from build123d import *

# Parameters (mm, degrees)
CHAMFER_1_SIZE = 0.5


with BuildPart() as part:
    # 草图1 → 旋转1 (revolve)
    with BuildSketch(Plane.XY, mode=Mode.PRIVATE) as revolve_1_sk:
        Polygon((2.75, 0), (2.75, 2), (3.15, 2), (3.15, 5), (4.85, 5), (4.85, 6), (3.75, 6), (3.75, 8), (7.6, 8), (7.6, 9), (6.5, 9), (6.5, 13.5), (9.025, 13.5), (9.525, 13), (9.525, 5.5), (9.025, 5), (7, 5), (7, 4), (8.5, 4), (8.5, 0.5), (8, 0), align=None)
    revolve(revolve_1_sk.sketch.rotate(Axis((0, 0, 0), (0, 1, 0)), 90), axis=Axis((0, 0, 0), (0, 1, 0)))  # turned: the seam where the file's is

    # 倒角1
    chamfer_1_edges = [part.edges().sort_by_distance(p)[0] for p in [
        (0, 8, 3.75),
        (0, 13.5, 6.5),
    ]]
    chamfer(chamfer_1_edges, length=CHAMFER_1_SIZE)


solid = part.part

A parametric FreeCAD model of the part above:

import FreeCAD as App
import Part
import Sketcher
Q = App.Units.Quantity


def edges_at(feature, points):
    """Names of the edges that pass closest to the given points."""
    edges = feature.Shape.Edges
    near = lambda p: min(range(len(edges)), key=lambda i: edges[i].distToShape(Part.Vertex(*p))[0])
    return sorted({f"Edge{near(p) + 1}" for p in points})


def add_polygon(sketch, points):
    """Adds a closed chain of lines whose ends are joined by coincident constraints."""
    first, n = sketch.GeometryCount, len(points)
    for a, b in zip(points, points[1:] + points[:1]):
        sketch.addGeometry(Part.LineSegment(App.Vector(*a, 0), App.Vector(*b, 0)), False)
    for i in range(n):
        sketch.addConstraint(Sketcher.Constraint("Coincident", first + i, 2, first + (i + 1) % n, 1))

doc = App.newDocument("Part")
body = doc.addObject("PartDesign::Body", "Body")

# Sketch on XY plane
sketch1 = doc.addObject("Sketcher::SketchObject", "Sketch")
body.addObject(sketch1)
sketch1.AttachmentSupport = (doc.XY_Plane, [""])
sketch1.MapMode = "FlatFace"
add_polygon(sketch1, [(2.75, 2), (2.75, 0), (8, 0), (8.5, 0.5), (8.5, 4), (7, 4), (7, 5), (9.03, 5), (9.53, 5.5), (9.53, 13), (9.03, 13.5), (6.5, 13.5), (6.5, 9), (7.6, 9), (7.6, 8), (3.75, 8), (3.75, 6), (4.85, 6), (4.85, 5), (3.15, 5), (3.15, 2)])  # lines 0-20
sketch1.addConstraint([
    Sketcher.Constraint("Vertical", 0),
    Sketcher.Constraint("Horizontal", 1),
    Sketcher.Constraint("Vertical", 3),
    Sketcher.Constraint("Horizontal", 4),
    Sketcher.Constraint("Vertical", 5),
    Sketcher.Constraint("Horizontal", 6),
    Sketcher.Constraint("Vertical", 8),
    Sketcher.Constraint("Horizontal", 10),
    Sketcher.Constraint("Vertical", 11),
    Sketcher.Constraint("Horizontal", 12),
    Sketcher.Constraint("Vertical", 13),
    Sketcher.Constraint("Horizontal", 14),
    Sketcher.Constraint("Vertical", 15),
    Sketcher.Constraint("Horizontal", 16),
    Sketcher.Constraint("Vertical", 17),
    Sketcher.Constraint("Horizontal", 18),
    Sketcher.Constraint("Vertical", 19),
    Sketcher.Constraint("Horizontal", 20),
    Sketcher.Constraint("PointOnObject", 0, 2, -1),
    Sketcher.Constraint("Parallel", 2, 7),
    Sketcher.Constraint("Perpendicular", 7, 9),
    Sketcher.Constraint("Horizontal", 6, 2, 17, 2),
    Sketcher.Constraint("Vertical", 6, 2, 9, 2),
    Sketcher.Constraint("Equal", 12, 16),
    Sketcher.Constraint("Equal", 5, 13),
    Sketcher.Constraint("Equal", 0, 15),
    Sketcher.Constraint("Equal", 13, 17),
    Sketcher.Constraint("Equal", 2, 7),
    Sketcher.Constraint("Equal", 7, 9),
    Sketcher.Constraint("DistanceY", 0, 2, 0, 1, Q("2 mm")),
    Sketcher.Constraint("DistanceY", 5, 1, 5, 2, Q("1 mm")),
    Sketcher.Constraint("DistanceY", 19, 2, 19, 1, Q("3 mm")),
    Sketcher.Constraint("DistanceX", 4, 2, 4, 1, Q("1.5 mm")),
    Sketcher.Constraint("DistanceX", 12, 1, 12, 2, Q("1.1 mm")),
    Sketcher.Constraint("DistanceX", 18, 2, 18, 1, Q("1.7 mm")),
    Sketcher.Constraint("DistanceX", 20, 2, 20, 1, Q("0.4 mm")),
    Sketcher.Constraint("DistanceY", 3, 1, 3, 2, Q("3.5 mm")),
    Sketcher.Constraint("DistanceY", 8, 1, 8, 2, Q("7.5 mm")),
    Sketcher.Constraint("DistanceX", -1, 1, 1, 2, Q("8 mm")),
    Sketcher.Constraint("DistanceX", 1, 1, 1, 2, Q("5.25 mm")),
    Sketcher.Constraint("DistanceX", 14, 2, 14, 1, Q("3.85 mm")),
    Sketcher.Constraint("DistanceX", 6, 1, 6, 2, Q("2.025 mm")),
])
revolution = doc.addObject("PartDesign::Revolution", "Revolution")
body.addObject(revolution)
revolution.Profile = sketch1
revolution.ReferenceAxis = (sketch1, ["V_Axis"])
revolution.Angle = 360
doc.recompute()

chamfer = doc.addObject("PartDesign::Chamfer", "Chamfer")
body.addObject(chamfer)
chamfer.Base = (revolution, edges_at(revolution, [(0, 8, 3.75), (0, 13.5, 6.5)]))
chamfer.Size = 0.5

doc.recompute()
